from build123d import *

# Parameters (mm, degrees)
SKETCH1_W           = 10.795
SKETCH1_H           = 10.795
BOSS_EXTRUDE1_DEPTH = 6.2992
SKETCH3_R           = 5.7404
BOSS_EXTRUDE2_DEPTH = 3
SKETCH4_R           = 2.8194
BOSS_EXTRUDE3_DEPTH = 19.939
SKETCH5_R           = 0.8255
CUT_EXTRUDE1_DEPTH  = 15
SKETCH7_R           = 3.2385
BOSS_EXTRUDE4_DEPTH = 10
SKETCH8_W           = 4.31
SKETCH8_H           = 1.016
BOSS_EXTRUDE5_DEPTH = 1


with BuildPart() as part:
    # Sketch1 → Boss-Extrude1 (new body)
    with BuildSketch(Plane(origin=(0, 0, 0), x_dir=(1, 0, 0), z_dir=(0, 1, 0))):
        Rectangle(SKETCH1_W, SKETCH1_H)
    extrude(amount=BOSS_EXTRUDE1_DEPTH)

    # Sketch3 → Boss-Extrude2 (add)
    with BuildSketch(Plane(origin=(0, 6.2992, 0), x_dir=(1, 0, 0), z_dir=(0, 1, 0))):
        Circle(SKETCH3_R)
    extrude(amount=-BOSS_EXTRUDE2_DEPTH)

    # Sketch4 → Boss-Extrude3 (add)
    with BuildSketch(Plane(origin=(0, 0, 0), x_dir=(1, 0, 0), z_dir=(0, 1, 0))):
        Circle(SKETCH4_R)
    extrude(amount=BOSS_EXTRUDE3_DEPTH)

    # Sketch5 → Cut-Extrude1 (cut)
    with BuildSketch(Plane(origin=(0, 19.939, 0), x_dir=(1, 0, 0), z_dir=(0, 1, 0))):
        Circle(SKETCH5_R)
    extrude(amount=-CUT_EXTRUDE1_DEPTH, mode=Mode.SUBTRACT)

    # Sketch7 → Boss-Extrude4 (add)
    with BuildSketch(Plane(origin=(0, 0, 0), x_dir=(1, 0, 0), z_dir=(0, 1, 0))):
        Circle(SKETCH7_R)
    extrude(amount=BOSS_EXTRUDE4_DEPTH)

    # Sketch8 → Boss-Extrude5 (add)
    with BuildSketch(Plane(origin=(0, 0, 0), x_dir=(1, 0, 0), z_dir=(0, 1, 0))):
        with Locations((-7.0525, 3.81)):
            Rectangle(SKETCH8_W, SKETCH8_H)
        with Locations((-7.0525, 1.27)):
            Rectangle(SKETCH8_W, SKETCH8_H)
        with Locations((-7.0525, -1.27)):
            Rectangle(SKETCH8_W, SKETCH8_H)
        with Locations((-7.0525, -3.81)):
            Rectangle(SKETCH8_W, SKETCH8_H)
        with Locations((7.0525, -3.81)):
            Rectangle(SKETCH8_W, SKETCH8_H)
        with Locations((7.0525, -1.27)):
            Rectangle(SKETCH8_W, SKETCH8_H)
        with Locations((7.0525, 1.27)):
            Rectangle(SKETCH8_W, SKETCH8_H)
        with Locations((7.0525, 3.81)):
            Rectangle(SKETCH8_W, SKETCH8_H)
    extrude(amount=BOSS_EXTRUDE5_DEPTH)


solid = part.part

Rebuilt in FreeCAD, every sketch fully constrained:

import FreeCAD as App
import Part
import Sketcher
Q = App.Units.Quantity

doc = App.newDocument("Part")
body = doc.addObject("PartDesign::Body", "Body")

# Sketch on XZ plane
sketch1 = doc.addObject("Sketcher::SketchObject", "Sketch")
body.addObject(sketch1)
sketch1.AttachmentSupport = (doc.XZ_Plane, [""])
sketch1.MapMode = "FlatFace"
sketch1.addGeometry(Part.LineSegment(App.Vector(-5, -5, 0), App.Vector(-5, 5, 0)), False)
sketch1.addGeometry(Part.LineSegment(App.Vector(-5, 5, 0), App.Vector(5, 5, 0)), False)
sketch1.addGeometry(Part.LineSegment(App.Vector(5, 5, 0), App.Vector(5, -5, 0)), False)
sketch1.addGeometry(Part.LineSegment(App.Vector(5, -5, 0), App.Vector(-5, -5, 0)), False)
sketch1.addConstraint(Sketcher.Constraint("Coincident", 0, 2, 1, 1))
sketch1.addConstraint(Sketcher.Constraint("Coincident", 1, 2, 2, 1))
sketch1.addConstraint(Sketcher.Constraint("Coincident", 2, 2, 3, 1))
sketch1.addConstraint(Sketcher.Constraint("Coincident", 3, 2, 0, 1))
sketch1.addConstraint(Sketcher.Constraint("Vertical", 0))
sketch1.addConstraint(Sketcher.Constraint("Horizontal", 1))
sketch1.addConstraint(Sketcher.Constraint("Vertical", 2))
sketch1.addConstraint(Sketcher.Constraint("Horizontal", 3))
sketch1.addConstraint(Sketcher.Constraint("Symmetric", 0, 2, 2, 2, -1, 1))
sketch1.addConstraint(Sketcher.Constraint("Equal", 3, 0))
sketch1.addConstraint(Sketcher.Constraint("DistanceX", 1, 1, 1, 2, Q("0.425 in")))
pad1 = doc.addObject("PartDesign::Pad", "Pad")
body.addObject(pad1)
pad1.Profile = sketch1
pad1.Length = Q("0.248 in")
pad1.Reversed = True

# Sketch on XZ plane
sketch2 = doc.addObject("Sketcher::SketchObject", "Sketch001")
body.addObject(sketch2)
sketch2.AttachmentSupport = (doc.XZ_Plane, [""])
sketch2.MapMode = "FlatFace"
sketch2.AttachmentOffset = App.Placement(App.Vector(0, 0, -0.248 * 25.4), App.Rotation())
sketch2.addGeometry(Part.Circle(App.Vector(0, 0, 0), App.Vector(0, 0, 1), 6), False)
sketch2.addConstraint(Sketcher.Constraint("Coincident", 0, 3, -1, 1))
sketch2.addConstraint(Sketcher.Constraint("Diameter", 0, Q("0.452 in")))
pad2 = doc.addObject("PartDesign::Pad", "Pad001")
body.addObject(pad2)
pad2.Profile = sketch2
pad2.Length = 3

# Sketch on XZ plane
sketch3 = doc.addObject("Sketcher::SketchObject", "Sketch002")
body.addObject(sketch3)
sketch3.AttachmentSupport = (doc.XZ_Plane, [""])
sketch3.MapMode = "FlatFace"
sketch3.addGeometry(Part.Circle(App.Vector(0, 0, 0), App.Vector(0, 0, 1), 2.8), False)
sketch3.addConstraint(Sketcher.Constraint("Coincident", 0, 3, -1, 1))
sketch3.addConstraint(Sketcher.Constraint("Diameter", 0, Q("0.222 in")))
pad3 = doc.addObject("PartDesign::Pad", "Pad002")
body.addObject(pad3)
pad3.Profile = sketch3
pad3.Length = Q("0.785 in")
pad3.Reversed = True

# Sketch on XZ plane
sketch4 = doc.addObject("Sketcher::SketchObject", "Sketch003")
body.addObject(sketch4)
sketch4.AttachmentSupport = (doc.XZ_Plane, [""])
sketch4.MapMode = "FlatFace"
sketch4.AttachmentOffset = App.Placement(App.Vector(0, 0, -0.785 * 25.4), App.Rotation())
sketch4.addGeometry(Part.Circle(App.Vector(0, 0, 0), App.Vector(0, 0, 1), 0.8), False)
sketch4.addConstraint(Sketcher.Constraint("Coincident", 0, 3, -1, 1))
sketch4.addConstraint(Sketcher.Constraint("Diameter", 0, Q("0.065 in")))
pocket1 = doc.addObject("PartDesign::Pocket", "Pocket")
body.addObject(pocket1)
pocket1.Profile = sketch4
pocket1.Length = 15
pocket1.Reversed = True

# Sketch on XZ plane
sketch5 = doc.addObject("Sketcher::SketchObject", "Sketch004")
body.addObject(sketch5)
sketch5.AttachmentSupport = (doc.XZ_Plane, [""])
sketch5.MapMode = "FlatFace"
sketch5.addGeometry(Part.Circle(App.Vector(0, 0, 0), App.Vector(0, 0, 1), 3.2), False)
sketch5.addConstraint(Sketcher.Constraint("Coincident", 0, 3, -1, 1))
sketch5.addConstraint(Sketcher.Constraint("Diameter", 0, Q("0.255 in")))
pad4 = doc.addObject("PartDesign::Pad", "Pad003")
body.addObject(pad4)
pad4.Profile = sketch5
pad4.Length = 10
pad4.Reversed = True

# Sketch on XZ plane
sketch6 = doc.addObject("Sketcher::SketchObject", "Sketch005")
body.addObject(sketch6)
sketch6.AttachmentSupport = (doc.XZ_Plane, [""])
sketch6.MapMode = "FlatFace"
sketch6.addGeometry(Part.LineSegment(App.Vector(-9.2, -4.3, 0), App.Vector(-9.2, -3.3, 0)), False)
sketch6.addGeometry(Part.LineSegment(App.Vector(-9.2, -3.3, 0), App.Vector(-4.9, -3.3, 0)), False)
sketch6.addGeometry(Part.LineSegment(App.Vector(-4.9, -3.3, 0), App.Vector(-4.9, -4.3, 0)), False)
sketch6.addGeometry(Part.LineSegment(App.Vector(-4.9, -4.3, 0), App.Vector(-9.2, -4.3, 0)), False)
sketch6.addGeometry(Part.LineSegment(App.Vector(-9.2, -1.8, 0), App.Vector(-9.2, -0.8, 0)), False)
sketch6.addGeometry(Part.LineSegment(App.Vector(-9.2, -0.8, 0), App.Vector(-4.9, -0.8, 0)), False)
sketch6.addGeometry(Part.LineSegment(App.Vector(-4.9, -0.8, 0), App.Vector(-4.9, -1.8, 0)), False)
sketch6.addGeometry(Part.LineSegment(App.Vector(-4.9, -1.8, 0), App.Vector(-9.2, -1.8, 0)), False)
sketch6.addGeometry(Part.LineSegment(App.Vector(-9.2, 0.8, 0), App.Vector(-9.2, 1.8, 0)), False)
sketch6.addGeometry(Part.LineSegment(App.Vector(-9.2, 1.8, 0), App.Vector(-4.9, 1.8, 0)), False)
sketch6.addGeometry(Part.LineSegment(App.Vector(-4.9, 1.8, 0), App.Vector(-4.9, 0.8, 0)), False)
sketch6.addGeometry(Part.LineSegment(App.Vector(-4.9, 0.8, 0), App.Vector(-9.2, 0.8, 0)), False)
sketch6.addGeometry(Part.LineSegment(App.Vector(-9.2, 3.3, 0), App.Vector(-9.2, 4.3, 0)), False)
sketch6.addGeometry(Part.LineSegment(App.Vector(-9.2, 4.3, 0), App.Vector(-4.9, 4.3, 0)), False)
sketch6.addGeometry(Part.LineSegment(App.Vector(-4.9, 4.3, 0), App.Vector(-4.9, 3.3, 0)), False)
sketch6.addGeometry(Part.LineSegment(App.Vector(-4.9, 3.3, 0), App.Vector(-9.2, 3.3, 0)), False)
sketch6.addGeometry(Part.LineSegment(App.Vector(4.9, 3.3, 0), App.Vector(4.9, 4.3, 0)), False)
sketch6.addGeometry(Part.LineSegment(App.Vector(4.9, 4.3, 0), App.Vector(9.2, 4.3, 0)), False)
sketch6.addGeometry(Part.LineSegment(App.Vector(9.2, 4.3, 0), App.Vector(9.2, 3.3, 0)), False)
sketch6.addGeometry(Part.LineSegment(App.Vector(9.2, 3.3, 0), App.Vector(4.9, 3.3, 0)), False)
sketch6.addGeometry(Part.LineSegment(App.Vector(4.9, 0.8, 0), App.Vector(4.9, 1.8, 0)), False)
sketch6.addGeometry(Part.LineSegment(App.Vector(4.9, 1.8, 0), App.Vector(9.2, 1.8, 0)), False)
sketch6.addGeometry(Part.LineSegment(App.Vector(9.2, 1.8, 0), App.Vector(9.2, 0.8, 0)), False)
sketch6.addGeometry(Part.LineSegment(App.Vector(9.2, 0.8, 0), App.Vector(4.9, 0.8, 0)), False)
sketch6.addGeometry(Part.LineSegment(App.Vector(4.9, -1.8, 0), App.Vector(4.9, -0.8, 0)), False)
sketch6.addGeometry(Part.LineSegment(App.Vector(4.9, -0.8, 0), App.Vector(9.2, -0.8, 0)), False)
sketch6.addGeometry(Part.LineSegment(App.Vector(9.2, -0.8, 0), App.Vector(9.2, -1.8, 0)), False)
sketch6.addGeometry(Part.LineSegment(App.Vector(9.2, -1.8, 0), App.Vector(4.9, -1.8, 0)), False)
sketch6.addGeometry(Part.LineSegment(App.Vector(4.9, -4.3, 0), App.Vector(4.9, -3.3, 0)), False)
sketch6.addGeometry(Part.LineSegment(App.Vector(4.9, -3.3, 0), App.Vector(9.2, -3.3, 0)), False)
sketch6.addGeometry(Part.LineSegment(App.Vector(9.2, -3.3, 0), App.Vector(9.2, -4.3, 0)), False)
sketch6.addGeometry(Part.LineSegment(App.Vector(9.2, -4.3, 0), App.Vector(4.9, -4.3, 0)), False)
sketch6.addConstraint(Sketcher.Constraint("Coincident", 0, 2, 1, 1))
sketch6.addConstraint(Sketcher.Constraint("Coincident", 1, 2, 2, 1))
sketch6.addConstraint(Sketcher.Constraint("Coincident", 2, 2, 3, 1))
sketch6.addConstraint(Sketcher.Constraint("Coincident", 3, 2, 0, 1))
sketch6.addConstraint(Sketcher.Constraint("Coincident", 4, 2, 5, 1))
sketch6.addConstraint(Sketcher.Constraint("Coincident", 5, 2, 6, 1))
sketch6.addConstraint(Sketcher.Constraint("Coincident", 6, 2, 7, 1))
sketch6.addConstraint(Sketcher.Constraint("Coincident", 7, 2, 4, 1))
sketch6.addConstraint(Sketcher.Constraint("Coincident", 8, 2, 9, 1))
sketch6.addConstraint(Sketcher.Constraint("Coincident", 9, 2, 10, 1))
sketch6.addConstraint(Sketcher.Constraint("Coincident", 10, 2, 11, 1))
sketch6.addConstraint(Sketcher.Constraint("Coincident", 11, 2, 8, 1))
sketch6.addConstraint(Sketcher.Constraint("Coincident", 12, 2, 13, 1))
sketch6.addConstraint(Sketcher.Constraint("Coincident", 13, 2, 14, 1))
sketch6.addConstraint(Sketcher.Constraint("Coincident", 14, 2, 15, 1))
sketch6.addConstraint(Sketcher.Constraint("Coincident", 15, 2, 12, 1))
sketch6.addConstraint(Sketcher.Constraint("Coincident", 16, 2, 17, 1))
sketch6.addConstraint(Sketcher.Constraint("Coincident", 17, 2, 18, 1))
sketch6.addConstraint(Sketcher.Constraint("Coincident", 18, 2, 19, 1))
sketch6.addConstraint(Sketcher.Constraint("Coincident", 19, 2, 16, 1))
sketch6.addConstraint(Sketcher.Constraint("Coincident", 20, 2, 21, 1))
sketch6.addConstraint(Sketcher.Constraint("Coincident", 21, 2, 22, 1))
sketch6.addConstraint(Sketcher.Constraint("Coincident", 22, 2, 23, 1))
sketch6.addConstraint(Sketcher.Constraint("Coincident", 23, 2, 20, 1))
sketch6.addConstraint(Sketcher.Constraint("Coincident", 24, 2, 25, 1))
sketch6.addConstraint(Sketcher.Constraint("Coincident", 25, 2, 26, 1))
sketch6.addConstraint(Sketcher.Constraint("Coincident", 26, 2, 27, 1))
sketch6.addConstraint(Sketcher.Constraint("Coincident", 27, 2, 24, 1))
sketch6.addConstraint(Sketcher.Constraint("Coincident", 28, 2, 29, 1))
sketch6.addConstraint(Sketcher.Constraint("Coincident", 29, 2, 30, 1))
sketch6.addConstraint(Sketcher.Constraint("Coincident", 30, 2, 31, 1))
sketch6.addConstraint(Sketcher.Constraint("Coincident", 31, 2, 28, 1))
sketch6.addConstraint(Sketcher.Constraint("Vertical", 0))
sketch6.addConstraint(Sketcher.Constraint("Horizontal", 1))
sketch6.addConstraint(Sketcher.Constraint("Vertical", 2))
sketch6.addConstraint(Sketcher.Constraint("Horizontal", 3))
sketch6.addConstraint(Sketcher.Constraint("Vertical", 4))
sketch6.addConstraint(Sketcher.Constraint("Horizontal", 5))
sketch6.addConstraint(Sketcher.Constraint("Vertical", 6))
sketch6.addConstraint(Sketcher.Constraint("Horizontal", 7))
sketch6.addConstraint(Sketcher.Constraint("Vertical", 8))
sketch6.addConstraint(Sketcher.Constraint("Horizontal", 9))
sketch6.addConstraint(Sketcher.Constraint("Vertical", 10))
sketch6.addConstraint(Sketcher.Constraint("Horizontal", 11))
sketch6.addConstraint(Sketcher.Constraint("Vertical", 12))
sketch6.addConstraint(Sketcher.Constraint("Horizontal", 13))
sketch6.addConstraint(Sketcher.Constraint("Vertical", 14))
sketch6.addConstraint(Sketcher.Constraint("Horizontal", 15))
sketch6.addConstraint(Sketcher.Constraint("Vertical", 16))
sketch6.addConstraint(Sketcher.Constraint("Horizontal", 17))
sketch6.addConstraint(Sketcher.Constraint("Vertical", 18))
sketch6.addConstraint(Sketcher.Constraint("Horizontal", 19))
sketch6.addConstraint(Sketcher.Constraint("Vertical", 20))
sketch6.addConstraint(Sketcher.Constraint("Horizontal", 21))
sketch6.addConstraint(Sketcher.Constraint("Vertical", 22))
sketch6.addConstraint(Sketcher.Constraint("Horizontal", 23))
sketch6.addConstraint(Sketcher.Constraint("Vertical", 24))
sketch6.addConstraint(Sketcher.Constraint("Horizontal", 25))
sketch6.addConstraint(Sketcher.Constraint("Vertical", 26))
sketch6.addConstraint(Sketcher.Constraint("Horizontal", 27))
sketch6.addConstraint(Sketcher.Constraint("Vertical", 28))
sketch6.addConstraint(Sketcher.Constraint("Horizontal", 29))
sketch6.addConstraint(Sketcher.Constraint("Vertical", 30))
sketch6.addConstraint(Sketcher.Constraint("Horizontal", 31))
sketch6.addConstraint(Sketcher.Constraint("Symmetric", 2, 2, 16, 2, -1, 1))
sketch6.addConstraint(Sketcher.Constraint("Symmetric", 0, 2, 18, 2, -1, 1))
sketch6.addConstraint(Sketcher.Constraint("Symmetric", 6, 2, 20, 2, -1, 1))
sketch6.addConstraint(Sketcher.Constraint("Symmetric", 4, 2, 22, 2, -1, 1))
sketch6.addConstraint(Sketcher.Constraint("Symmetric", 10, 2, 24, 2, -1, 1))
sketch6.addConstraint(Sketcher.Constraint("Symmetric", 8, 2, 26, 2, -1, 1))
sketch6.addConstraint(Sketcher.Constraint("Symmetric", 14, 2, 28, 2, -1, 1))
sketch6.addConstraint(Sketcher.Constraint("Symmetric", 12, 2, 30, 2, -1, 1))
sketch6.addConstraint(Sketcher.Constraint("Symmetric", 13, 2, 16, 2, -2))
sketch6.addConstraint(Sketcher.Constraint("Symmetric", 15, 2, 18, 2, -2))
sketch6.addConstraint(Sketcher.Constraint("Symmetric", 9, 2, 20, 2, -2))
sketch6.addConstraint(Sketcher.Constraint("Symmetric", 11, 2, 22, 2, -2))
sketch6.addConstraint(Sketcher.Constraint("Vertical", 3, 2, 4, 2))
sketch6.addConstraint(Sketcher.Constraint("Vertical", 2, 2, 5, 2))
sketch6.addConstraint(Sketcher.Constraint("Equal", 2, 4))
sketch6.addConstraint(Sketcher.Constraint("DistanceY", 0, 1, 0, 2, Q("0.04 in")))
sketch6.addConstraint(Sketcher.Constraint("DistanceY", 0, 2, 4, 2, Q("0.1 in")))
sketch6.addConstraint(Sketcher.Constraint("DistanceY", 4, 2, 8, 2, Q("0.1 in")))
sketch6.addConstraint(Sketcher.Constraint("DistanceX", 1, 1, 1, 2, 4.31))
sketch6.addConstraint(Sketcher.Constraint("DistanceX", 0, 2, -1, 1, Q("0.3625 in")))
pad5 = doc.addObject("PartDesign::Pad", "Pad004")
body.addObject(pad5)
pad5.Profile = sketch6
pad5.Length = 1
pad5.Reversed = True

doc.recompute()
